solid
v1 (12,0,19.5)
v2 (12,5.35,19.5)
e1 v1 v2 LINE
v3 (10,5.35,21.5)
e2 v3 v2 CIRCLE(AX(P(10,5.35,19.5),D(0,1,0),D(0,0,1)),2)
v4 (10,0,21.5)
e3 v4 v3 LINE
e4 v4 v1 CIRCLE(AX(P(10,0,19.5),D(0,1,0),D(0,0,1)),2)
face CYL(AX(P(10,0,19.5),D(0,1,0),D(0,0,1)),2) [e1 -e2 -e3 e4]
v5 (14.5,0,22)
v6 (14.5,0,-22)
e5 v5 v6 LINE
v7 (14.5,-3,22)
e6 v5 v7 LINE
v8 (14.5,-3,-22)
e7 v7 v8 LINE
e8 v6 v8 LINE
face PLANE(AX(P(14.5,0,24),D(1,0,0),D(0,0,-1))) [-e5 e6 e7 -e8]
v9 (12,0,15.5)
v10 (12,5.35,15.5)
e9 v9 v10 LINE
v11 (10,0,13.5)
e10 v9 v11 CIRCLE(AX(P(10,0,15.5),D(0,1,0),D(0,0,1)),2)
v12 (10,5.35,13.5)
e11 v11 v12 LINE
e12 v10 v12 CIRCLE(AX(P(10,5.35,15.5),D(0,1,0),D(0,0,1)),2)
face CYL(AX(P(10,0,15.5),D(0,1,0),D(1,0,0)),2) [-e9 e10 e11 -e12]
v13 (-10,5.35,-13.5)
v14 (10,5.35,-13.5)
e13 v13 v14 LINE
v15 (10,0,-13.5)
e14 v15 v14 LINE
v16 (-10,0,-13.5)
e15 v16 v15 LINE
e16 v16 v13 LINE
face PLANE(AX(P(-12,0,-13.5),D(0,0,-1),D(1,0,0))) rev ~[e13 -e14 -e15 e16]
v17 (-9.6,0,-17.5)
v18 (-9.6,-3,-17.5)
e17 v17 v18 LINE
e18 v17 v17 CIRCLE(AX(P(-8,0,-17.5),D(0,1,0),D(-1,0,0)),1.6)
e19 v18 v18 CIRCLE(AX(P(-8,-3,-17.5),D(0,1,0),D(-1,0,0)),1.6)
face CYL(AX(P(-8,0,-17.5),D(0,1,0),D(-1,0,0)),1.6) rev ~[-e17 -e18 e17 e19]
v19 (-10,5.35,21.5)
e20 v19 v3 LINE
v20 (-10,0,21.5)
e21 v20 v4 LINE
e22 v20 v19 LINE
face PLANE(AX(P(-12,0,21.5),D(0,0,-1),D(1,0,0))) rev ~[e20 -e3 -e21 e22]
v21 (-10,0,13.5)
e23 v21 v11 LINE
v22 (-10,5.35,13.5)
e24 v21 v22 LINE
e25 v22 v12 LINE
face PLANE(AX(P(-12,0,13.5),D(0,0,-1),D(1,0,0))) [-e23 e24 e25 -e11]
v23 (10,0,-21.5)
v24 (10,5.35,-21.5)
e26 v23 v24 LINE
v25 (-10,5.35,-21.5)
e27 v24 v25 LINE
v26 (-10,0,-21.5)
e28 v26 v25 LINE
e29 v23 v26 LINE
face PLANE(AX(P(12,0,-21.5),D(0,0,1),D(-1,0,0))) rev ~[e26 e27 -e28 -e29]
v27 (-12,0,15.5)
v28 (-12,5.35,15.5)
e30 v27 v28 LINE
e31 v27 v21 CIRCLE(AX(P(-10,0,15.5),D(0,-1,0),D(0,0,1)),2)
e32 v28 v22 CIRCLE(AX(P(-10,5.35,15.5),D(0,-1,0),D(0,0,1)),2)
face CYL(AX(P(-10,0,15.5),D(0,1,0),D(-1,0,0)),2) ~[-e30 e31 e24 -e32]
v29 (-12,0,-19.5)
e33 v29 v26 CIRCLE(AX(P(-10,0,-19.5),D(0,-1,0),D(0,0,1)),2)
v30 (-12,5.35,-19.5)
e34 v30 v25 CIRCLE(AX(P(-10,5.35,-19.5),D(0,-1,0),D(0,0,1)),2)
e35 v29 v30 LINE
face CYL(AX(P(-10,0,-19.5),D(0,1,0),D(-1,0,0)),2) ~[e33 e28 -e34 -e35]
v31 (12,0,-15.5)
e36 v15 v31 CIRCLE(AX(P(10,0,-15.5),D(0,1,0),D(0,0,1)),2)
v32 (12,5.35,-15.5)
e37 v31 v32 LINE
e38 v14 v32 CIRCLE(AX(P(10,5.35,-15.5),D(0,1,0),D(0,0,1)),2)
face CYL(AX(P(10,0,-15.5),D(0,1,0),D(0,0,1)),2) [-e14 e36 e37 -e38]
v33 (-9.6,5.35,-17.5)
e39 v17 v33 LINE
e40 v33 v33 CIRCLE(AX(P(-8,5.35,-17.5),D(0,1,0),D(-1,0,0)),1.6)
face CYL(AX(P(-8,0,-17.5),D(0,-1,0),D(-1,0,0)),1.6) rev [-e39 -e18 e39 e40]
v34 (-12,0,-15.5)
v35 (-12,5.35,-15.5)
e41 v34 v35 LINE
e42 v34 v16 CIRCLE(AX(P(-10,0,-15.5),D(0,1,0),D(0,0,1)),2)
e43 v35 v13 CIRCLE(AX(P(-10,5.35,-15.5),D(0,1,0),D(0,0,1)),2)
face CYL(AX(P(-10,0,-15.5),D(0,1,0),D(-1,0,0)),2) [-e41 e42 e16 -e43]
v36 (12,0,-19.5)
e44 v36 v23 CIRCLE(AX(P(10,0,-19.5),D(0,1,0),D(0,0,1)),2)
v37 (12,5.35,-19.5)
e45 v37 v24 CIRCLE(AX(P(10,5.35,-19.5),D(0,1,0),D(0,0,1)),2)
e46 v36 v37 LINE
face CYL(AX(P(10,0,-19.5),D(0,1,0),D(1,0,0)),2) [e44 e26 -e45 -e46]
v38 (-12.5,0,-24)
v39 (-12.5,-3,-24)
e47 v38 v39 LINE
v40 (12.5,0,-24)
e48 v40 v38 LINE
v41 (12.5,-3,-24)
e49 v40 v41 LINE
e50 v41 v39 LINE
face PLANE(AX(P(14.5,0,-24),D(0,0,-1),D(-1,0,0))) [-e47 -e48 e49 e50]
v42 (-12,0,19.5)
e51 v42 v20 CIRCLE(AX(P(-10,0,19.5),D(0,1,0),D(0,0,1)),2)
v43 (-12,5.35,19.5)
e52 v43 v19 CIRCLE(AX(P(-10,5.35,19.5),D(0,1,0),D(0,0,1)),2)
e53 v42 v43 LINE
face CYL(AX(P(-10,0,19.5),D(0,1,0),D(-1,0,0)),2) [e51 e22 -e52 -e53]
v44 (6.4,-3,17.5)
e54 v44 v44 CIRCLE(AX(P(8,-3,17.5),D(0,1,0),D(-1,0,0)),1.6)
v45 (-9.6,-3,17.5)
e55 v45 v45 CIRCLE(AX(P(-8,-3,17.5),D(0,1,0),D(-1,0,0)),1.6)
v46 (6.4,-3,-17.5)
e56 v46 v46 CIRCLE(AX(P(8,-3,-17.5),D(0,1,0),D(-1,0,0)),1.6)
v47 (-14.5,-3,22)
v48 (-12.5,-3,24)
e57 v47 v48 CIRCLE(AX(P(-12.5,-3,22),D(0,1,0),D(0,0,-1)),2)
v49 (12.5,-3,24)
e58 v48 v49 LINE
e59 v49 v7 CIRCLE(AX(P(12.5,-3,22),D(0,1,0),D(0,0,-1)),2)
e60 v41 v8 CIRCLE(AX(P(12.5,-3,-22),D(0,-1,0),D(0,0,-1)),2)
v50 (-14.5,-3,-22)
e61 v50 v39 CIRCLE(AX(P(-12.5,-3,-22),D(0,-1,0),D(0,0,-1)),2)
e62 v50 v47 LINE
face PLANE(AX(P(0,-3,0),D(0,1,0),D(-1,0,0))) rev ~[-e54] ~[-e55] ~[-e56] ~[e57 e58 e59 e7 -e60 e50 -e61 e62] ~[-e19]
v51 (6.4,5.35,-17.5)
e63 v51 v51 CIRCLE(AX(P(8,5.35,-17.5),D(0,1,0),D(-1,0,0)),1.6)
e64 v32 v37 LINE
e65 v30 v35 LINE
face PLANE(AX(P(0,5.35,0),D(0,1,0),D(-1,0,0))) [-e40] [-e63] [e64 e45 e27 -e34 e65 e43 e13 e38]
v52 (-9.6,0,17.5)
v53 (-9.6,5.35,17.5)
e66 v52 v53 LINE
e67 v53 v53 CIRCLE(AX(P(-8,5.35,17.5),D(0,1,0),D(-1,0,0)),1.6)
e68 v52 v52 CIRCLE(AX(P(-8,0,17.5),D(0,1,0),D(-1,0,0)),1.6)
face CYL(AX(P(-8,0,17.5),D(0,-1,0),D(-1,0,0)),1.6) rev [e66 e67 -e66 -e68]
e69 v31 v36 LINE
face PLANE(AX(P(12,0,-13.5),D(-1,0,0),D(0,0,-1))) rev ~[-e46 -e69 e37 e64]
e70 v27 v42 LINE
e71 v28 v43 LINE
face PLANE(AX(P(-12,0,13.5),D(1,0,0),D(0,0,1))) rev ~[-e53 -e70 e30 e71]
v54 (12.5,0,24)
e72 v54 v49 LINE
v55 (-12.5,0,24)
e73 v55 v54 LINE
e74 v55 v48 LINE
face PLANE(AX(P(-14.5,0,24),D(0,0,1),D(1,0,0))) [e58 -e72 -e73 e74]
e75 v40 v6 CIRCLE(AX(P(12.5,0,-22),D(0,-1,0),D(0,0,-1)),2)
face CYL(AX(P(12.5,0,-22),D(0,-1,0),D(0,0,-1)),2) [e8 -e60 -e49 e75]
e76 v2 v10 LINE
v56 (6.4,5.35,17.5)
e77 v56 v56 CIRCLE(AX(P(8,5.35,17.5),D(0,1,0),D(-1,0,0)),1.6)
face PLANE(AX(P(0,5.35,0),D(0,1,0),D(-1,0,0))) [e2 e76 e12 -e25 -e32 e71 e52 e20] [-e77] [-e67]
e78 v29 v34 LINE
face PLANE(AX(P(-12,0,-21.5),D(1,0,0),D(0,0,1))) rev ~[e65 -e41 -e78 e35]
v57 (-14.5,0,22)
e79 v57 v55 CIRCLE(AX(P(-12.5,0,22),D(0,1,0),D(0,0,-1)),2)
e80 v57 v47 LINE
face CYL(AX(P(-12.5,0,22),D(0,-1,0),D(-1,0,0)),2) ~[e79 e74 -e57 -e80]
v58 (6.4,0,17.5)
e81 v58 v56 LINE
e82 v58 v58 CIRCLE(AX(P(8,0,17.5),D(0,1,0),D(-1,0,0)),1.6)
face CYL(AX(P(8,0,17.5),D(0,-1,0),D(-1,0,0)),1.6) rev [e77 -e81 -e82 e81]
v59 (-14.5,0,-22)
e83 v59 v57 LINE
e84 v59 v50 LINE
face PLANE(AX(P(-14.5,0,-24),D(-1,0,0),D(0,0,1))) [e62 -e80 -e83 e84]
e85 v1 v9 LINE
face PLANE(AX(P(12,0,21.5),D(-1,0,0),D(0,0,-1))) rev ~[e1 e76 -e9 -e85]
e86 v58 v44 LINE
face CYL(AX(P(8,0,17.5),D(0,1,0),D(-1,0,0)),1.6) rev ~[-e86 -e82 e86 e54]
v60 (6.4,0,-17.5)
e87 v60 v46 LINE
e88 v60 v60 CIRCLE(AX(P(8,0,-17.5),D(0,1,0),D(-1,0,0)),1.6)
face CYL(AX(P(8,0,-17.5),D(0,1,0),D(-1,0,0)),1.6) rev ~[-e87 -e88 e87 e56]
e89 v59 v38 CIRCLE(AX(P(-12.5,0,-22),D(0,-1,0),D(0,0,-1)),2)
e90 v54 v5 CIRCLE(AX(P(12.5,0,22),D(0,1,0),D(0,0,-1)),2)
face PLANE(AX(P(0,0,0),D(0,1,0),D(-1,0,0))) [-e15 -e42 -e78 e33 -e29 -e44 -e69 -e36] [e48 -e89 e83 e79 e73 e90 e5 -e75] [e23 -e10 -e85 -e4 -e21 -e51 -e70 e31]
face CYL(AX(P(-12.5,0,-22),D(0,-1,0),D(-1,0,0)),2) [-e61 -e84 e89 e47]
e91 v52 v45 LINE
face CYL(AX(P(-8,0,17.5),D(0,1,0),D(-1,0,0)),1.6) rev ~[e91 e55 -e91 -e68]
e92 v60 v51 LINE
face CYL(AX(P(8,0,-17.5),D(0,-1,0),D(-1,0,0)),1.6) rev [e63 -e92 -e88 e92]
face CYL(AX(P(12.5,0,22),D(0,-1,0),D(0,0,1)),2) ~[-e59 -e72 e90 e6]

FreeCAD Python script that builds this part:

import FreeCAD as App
import Part
import Sketcher

V = App.Vector
Q = App.Units.Quantity


def edges_at(feature, points):
    """Names of the edges that pass closest to the given points."""
    edges = feature.Shape.Edges
    near = lambda p: min(range(len(edges)), key=lambda i: edges[i].distToShape(Part.Vertex(*p))[0])
    return sorted({f"Edge{near(p) + 1}" for p in points})

doc = App.newDocument("Part")
body = doc.addObject("PartDesign::Body", "Body")

# Sketch on XZ plane
sketch1 = body.newObject("Sketcher::SketchObject", "Sketch")
sketch1.AttachmentSupport = (doc.getObject("XZ_Plane"), [""])
sketch1.MapMode = "FlatFace"
sketch1.addGeometry([
    Part.LineSegment(V(-14, -24, 0), V(-14, 24, 0)),
    Part.LineSegment(V(-14, 24, 0), V(14, 24, 0)),
    Part.LineSegment(V(14, 24, 0), V(14, -24, 0)),
    Part.LineSegment(V(14, -24, 0), V(-14, -24, 0)),
], False)
sketch1.addConstraint([
    Sketcher.Constraint("Coincident", 0, 2, 1, 1),
    Sketcher.Constraint("Coincident", 1, 2, 2, 1),
    Sketcher.Constraint("Coincident", 2, 2, 3, 1),
    Sketcher.Constraint("Coincident", 3, 2, 0, 1),
    Sketcher.Constraint("Vertical", 0),
    Sketcher.Constraint("Horizontal", 1),
    Sketcher.Constraint("Vertical", 2),
    Sketcher.Constraint("Horizontal", 3),
    Sketcher.Constraint("Symmetric", 0, 2, 2, 2, -1, 1),
    Sketcher.Constraint("DistanceY", -1, 1, 0, 2, Q("24 mm")),
    Sketcher.Constraint("DistanceX", 1, 1, 1, 2, Q("29 mm")),
])
pad1 = body.newObject("PartDesign::Pad", "Pad")
pad1.Profile = sketch1
pad1.Length = 3

# Sketch on XZ plane
sketch2 = body.newObject("Sketcher::SketchObject", "Sketch001")
sketch2.AttachmentSupport = (doc.getObject("XZ_Plane"), [""])
sketch2.MapMode = "FlatFace"
sketch2.addGeometry([
    Part.Circle(V(-8, 17.5, 0), V(0, 0, 1), 1.6),
    Part.Circle(V(-8, -17.5, 0), V(0, 0, 1), 1.6),
    Part.Circle(V(8, 17.5, 0), V(0, 0, 1), 1.6),
    Part.Circle(V(8, -17.5, 0), V(0, 0, 1), 1.6),
], False)
sketch2.addConstraint([
    Sketcher.Constraint("Equal", 0, 1),
    Sketcher.Constraint("Equal", 1, 2),
    Sketcher.Constraint("Equal", 2, 3),
    Sketcher.Constraint("Symmetric", 1, 3, 2, 3, -1, 1),
    Sketcher.Constraint("Symmetric", 0, 3, 3, 3, -1, 1),
    Sketcher.Constraint("Symmetric", 0, 3, 2, 3, -2),
    Sketcher.Constraint("Diameter", 0, Q("3.2 mm")),
    Sketcher.Constraint("DistanceX", 0, 3, -1, 1, Q("8 mm")),
    Sketcher.Constraint("DistanceY", 1, 3, 0, 3, Q("35 mm")),
])
pocket1 = body.newObject("PartDesign::Pocket", "Pocket")
pocket1.Profile = sketch2
pocket1.Length = 6
pocket1.Reversed = True

# Sketch on XZ plane
sketch3 = body.newObject("Sketcher::SketchObject", "Sketch002")
sketch3.AttachmentSupport = (doc.getObject("XZ_Plane"), [""])
sketch3.MapMode = "FlatFace"
sketch3.addGeometry([
    Part.LineSegment(V(-12, 13.5, 0), V(-12, 21.5, 0)),  # 0
    Part.LineSegment(V(-12, 21.5, 0), V(12, 21.5, 0)),  # 1
    Part.LineSegment(V(12, 21.5, 0), V(12, 13.5, 0)),  # 2
    Part.LineSegment(V(12, 13.5, 0), V(-12, 13.5, 0)),  # 3
    Part.Circle(V(8, 17.5, 0), V(0, 0, 1), 1.6),  # 4
    Part.Circle(V(-8, 17.5, 0), V(0, 0, 1), 1.6),  # 5
    Part.LineSegment(V(-12, -21.5, 0), V(-12, -13.5, 0)),  # 6
    Part.LineSegment(V(-12, -13.5, 0), V(12, -13.5, 0)),  # 7
    Part.LineSegment(V(12, -13.5, 0), V(12, -21.5, 0)),  # 8
    Part.LineSegment(V(12, -21.5, 0), V(-12, -21.5, 0)),  # 9
    Part.Circle(V(8, -17.5, 0), V(0, 0, 1), 1.6),  # 10
    Part.Circle(V(-8, -17.5, 0), V(0, 0, 1), 1.6),  # 11
], False)
sketch3.addConstraint([
    Sketcher.Constraint("Coincident", 0, 2, 1, 1),
    Sketcher.Constraint("Coincident", 1, 2, 2, 1),
    Sketcher.Constraint("Coincident", 2, 2, 3, 1),
    Sketcher.Constraint("Coincident", 3, 2, 0, 1),
    Sketcher.Constraint("Coincident", 6, 2, 7, 1),
    Sketcher.Constraint("Coincident", 7, 2, 8, 1),
    Sketcher.Constraint("Coincident", 8, 2, 9, 1),
    Sketcher.Constraint("Coincident", 9, 2, 6, 1),
    Sketcher.Constraint("Vertical", 0),
    Sketcher.Constraint("Horizontal", 1),
    Sketcher.Constraint("Vertical", 2),
    Sketcher.Constraint("Horizontal", 3),
    Sketcher.Constraint("Vertical", 6),
    Sketcher.Constraint("Horizontal", 7),
    Sketcher.Constraint("Vertical", 8),
    Sketcher.Constraint("Horizontal", 9),
    Sketcher.Constraint("Equal", 4, 5),
    Sketcher.Constraint("Equal", 5, 10),
    Sketcher.Constraint("Equal", 10, 11),
    Sketcher.Constraint("Symmetric", 5, 3, 10, 3, -1, 1),
    Sketcher.Constraint("Symmetric", 4, 3, 11, 3, -1, 1),
    Sketcher.Constraint("Symmetric", 2, 2, 6, 2, -1, 1),
    Sketcher.Constraint("Symmetric", 0, 2, 8, 2, -1, 1),
    Sketcher.Constraint("Symmetric", 4, 3, 5, 3, -2),
    Sketcher.Constraint("Vertical", 3, 2, 6, 2),
    Sketcher.Constraint("Diameter", 4, Q("3.2 mm")),
    Sketcher.Constraint("DistanceX", 1, 1, 1, 2, Q("24 mm")),
    Sketcher.Constraint("DistanceY", 0, 1, 0, 2, Q("8 mm")),
    Sketcher.Constraint("DistanceX", -1, 1, 4, 3, Q("8 mm")),
    Sketcher.Constraint("DistanceY", 5, 3, 0, 2, Q("4 mm")),
    Sketcher.Constraint("DistanceY", -1, 1, 0, 2, Q("21.5 mm")),
])
pad2 = body.newObject("PartDesign::Pad", "Pad001")
pad2.Profile = sketch3
pad2.Length = 5.35
pad2.Reversed = True
doc.recompute()

fillet = body.newObject("PartDesign::Fillet", "Fillet")
fillet.Base = (pad2, edges_at(pad2, [
    (14.5, -1.5, 24),
    (-14.5, -1.5, 24),
    (14.5, -1.5, -24),
    (-14.5, -1.5, -24),
]))
fillet.Radius = 2
doc.recompute()

fillet2 = body.newObject("PartDesign::Fillet", "Fillet001")
fillet2.Base = (fillet, edges_at(fillet, [
    (12, 2.675, 21.5),
    (12, 2.675, 13.5),
    (-12, 2.675, 21.5),
    (-12, 2.675, 13.5),
    (12, 2.675, -13.5),
    (12, 2.675, -21.5),
    (-12, 2.675, -21.5),
    (-12, 2.675, -13.5),
]))
fillet2.Radius = 2

doc.recompute()
